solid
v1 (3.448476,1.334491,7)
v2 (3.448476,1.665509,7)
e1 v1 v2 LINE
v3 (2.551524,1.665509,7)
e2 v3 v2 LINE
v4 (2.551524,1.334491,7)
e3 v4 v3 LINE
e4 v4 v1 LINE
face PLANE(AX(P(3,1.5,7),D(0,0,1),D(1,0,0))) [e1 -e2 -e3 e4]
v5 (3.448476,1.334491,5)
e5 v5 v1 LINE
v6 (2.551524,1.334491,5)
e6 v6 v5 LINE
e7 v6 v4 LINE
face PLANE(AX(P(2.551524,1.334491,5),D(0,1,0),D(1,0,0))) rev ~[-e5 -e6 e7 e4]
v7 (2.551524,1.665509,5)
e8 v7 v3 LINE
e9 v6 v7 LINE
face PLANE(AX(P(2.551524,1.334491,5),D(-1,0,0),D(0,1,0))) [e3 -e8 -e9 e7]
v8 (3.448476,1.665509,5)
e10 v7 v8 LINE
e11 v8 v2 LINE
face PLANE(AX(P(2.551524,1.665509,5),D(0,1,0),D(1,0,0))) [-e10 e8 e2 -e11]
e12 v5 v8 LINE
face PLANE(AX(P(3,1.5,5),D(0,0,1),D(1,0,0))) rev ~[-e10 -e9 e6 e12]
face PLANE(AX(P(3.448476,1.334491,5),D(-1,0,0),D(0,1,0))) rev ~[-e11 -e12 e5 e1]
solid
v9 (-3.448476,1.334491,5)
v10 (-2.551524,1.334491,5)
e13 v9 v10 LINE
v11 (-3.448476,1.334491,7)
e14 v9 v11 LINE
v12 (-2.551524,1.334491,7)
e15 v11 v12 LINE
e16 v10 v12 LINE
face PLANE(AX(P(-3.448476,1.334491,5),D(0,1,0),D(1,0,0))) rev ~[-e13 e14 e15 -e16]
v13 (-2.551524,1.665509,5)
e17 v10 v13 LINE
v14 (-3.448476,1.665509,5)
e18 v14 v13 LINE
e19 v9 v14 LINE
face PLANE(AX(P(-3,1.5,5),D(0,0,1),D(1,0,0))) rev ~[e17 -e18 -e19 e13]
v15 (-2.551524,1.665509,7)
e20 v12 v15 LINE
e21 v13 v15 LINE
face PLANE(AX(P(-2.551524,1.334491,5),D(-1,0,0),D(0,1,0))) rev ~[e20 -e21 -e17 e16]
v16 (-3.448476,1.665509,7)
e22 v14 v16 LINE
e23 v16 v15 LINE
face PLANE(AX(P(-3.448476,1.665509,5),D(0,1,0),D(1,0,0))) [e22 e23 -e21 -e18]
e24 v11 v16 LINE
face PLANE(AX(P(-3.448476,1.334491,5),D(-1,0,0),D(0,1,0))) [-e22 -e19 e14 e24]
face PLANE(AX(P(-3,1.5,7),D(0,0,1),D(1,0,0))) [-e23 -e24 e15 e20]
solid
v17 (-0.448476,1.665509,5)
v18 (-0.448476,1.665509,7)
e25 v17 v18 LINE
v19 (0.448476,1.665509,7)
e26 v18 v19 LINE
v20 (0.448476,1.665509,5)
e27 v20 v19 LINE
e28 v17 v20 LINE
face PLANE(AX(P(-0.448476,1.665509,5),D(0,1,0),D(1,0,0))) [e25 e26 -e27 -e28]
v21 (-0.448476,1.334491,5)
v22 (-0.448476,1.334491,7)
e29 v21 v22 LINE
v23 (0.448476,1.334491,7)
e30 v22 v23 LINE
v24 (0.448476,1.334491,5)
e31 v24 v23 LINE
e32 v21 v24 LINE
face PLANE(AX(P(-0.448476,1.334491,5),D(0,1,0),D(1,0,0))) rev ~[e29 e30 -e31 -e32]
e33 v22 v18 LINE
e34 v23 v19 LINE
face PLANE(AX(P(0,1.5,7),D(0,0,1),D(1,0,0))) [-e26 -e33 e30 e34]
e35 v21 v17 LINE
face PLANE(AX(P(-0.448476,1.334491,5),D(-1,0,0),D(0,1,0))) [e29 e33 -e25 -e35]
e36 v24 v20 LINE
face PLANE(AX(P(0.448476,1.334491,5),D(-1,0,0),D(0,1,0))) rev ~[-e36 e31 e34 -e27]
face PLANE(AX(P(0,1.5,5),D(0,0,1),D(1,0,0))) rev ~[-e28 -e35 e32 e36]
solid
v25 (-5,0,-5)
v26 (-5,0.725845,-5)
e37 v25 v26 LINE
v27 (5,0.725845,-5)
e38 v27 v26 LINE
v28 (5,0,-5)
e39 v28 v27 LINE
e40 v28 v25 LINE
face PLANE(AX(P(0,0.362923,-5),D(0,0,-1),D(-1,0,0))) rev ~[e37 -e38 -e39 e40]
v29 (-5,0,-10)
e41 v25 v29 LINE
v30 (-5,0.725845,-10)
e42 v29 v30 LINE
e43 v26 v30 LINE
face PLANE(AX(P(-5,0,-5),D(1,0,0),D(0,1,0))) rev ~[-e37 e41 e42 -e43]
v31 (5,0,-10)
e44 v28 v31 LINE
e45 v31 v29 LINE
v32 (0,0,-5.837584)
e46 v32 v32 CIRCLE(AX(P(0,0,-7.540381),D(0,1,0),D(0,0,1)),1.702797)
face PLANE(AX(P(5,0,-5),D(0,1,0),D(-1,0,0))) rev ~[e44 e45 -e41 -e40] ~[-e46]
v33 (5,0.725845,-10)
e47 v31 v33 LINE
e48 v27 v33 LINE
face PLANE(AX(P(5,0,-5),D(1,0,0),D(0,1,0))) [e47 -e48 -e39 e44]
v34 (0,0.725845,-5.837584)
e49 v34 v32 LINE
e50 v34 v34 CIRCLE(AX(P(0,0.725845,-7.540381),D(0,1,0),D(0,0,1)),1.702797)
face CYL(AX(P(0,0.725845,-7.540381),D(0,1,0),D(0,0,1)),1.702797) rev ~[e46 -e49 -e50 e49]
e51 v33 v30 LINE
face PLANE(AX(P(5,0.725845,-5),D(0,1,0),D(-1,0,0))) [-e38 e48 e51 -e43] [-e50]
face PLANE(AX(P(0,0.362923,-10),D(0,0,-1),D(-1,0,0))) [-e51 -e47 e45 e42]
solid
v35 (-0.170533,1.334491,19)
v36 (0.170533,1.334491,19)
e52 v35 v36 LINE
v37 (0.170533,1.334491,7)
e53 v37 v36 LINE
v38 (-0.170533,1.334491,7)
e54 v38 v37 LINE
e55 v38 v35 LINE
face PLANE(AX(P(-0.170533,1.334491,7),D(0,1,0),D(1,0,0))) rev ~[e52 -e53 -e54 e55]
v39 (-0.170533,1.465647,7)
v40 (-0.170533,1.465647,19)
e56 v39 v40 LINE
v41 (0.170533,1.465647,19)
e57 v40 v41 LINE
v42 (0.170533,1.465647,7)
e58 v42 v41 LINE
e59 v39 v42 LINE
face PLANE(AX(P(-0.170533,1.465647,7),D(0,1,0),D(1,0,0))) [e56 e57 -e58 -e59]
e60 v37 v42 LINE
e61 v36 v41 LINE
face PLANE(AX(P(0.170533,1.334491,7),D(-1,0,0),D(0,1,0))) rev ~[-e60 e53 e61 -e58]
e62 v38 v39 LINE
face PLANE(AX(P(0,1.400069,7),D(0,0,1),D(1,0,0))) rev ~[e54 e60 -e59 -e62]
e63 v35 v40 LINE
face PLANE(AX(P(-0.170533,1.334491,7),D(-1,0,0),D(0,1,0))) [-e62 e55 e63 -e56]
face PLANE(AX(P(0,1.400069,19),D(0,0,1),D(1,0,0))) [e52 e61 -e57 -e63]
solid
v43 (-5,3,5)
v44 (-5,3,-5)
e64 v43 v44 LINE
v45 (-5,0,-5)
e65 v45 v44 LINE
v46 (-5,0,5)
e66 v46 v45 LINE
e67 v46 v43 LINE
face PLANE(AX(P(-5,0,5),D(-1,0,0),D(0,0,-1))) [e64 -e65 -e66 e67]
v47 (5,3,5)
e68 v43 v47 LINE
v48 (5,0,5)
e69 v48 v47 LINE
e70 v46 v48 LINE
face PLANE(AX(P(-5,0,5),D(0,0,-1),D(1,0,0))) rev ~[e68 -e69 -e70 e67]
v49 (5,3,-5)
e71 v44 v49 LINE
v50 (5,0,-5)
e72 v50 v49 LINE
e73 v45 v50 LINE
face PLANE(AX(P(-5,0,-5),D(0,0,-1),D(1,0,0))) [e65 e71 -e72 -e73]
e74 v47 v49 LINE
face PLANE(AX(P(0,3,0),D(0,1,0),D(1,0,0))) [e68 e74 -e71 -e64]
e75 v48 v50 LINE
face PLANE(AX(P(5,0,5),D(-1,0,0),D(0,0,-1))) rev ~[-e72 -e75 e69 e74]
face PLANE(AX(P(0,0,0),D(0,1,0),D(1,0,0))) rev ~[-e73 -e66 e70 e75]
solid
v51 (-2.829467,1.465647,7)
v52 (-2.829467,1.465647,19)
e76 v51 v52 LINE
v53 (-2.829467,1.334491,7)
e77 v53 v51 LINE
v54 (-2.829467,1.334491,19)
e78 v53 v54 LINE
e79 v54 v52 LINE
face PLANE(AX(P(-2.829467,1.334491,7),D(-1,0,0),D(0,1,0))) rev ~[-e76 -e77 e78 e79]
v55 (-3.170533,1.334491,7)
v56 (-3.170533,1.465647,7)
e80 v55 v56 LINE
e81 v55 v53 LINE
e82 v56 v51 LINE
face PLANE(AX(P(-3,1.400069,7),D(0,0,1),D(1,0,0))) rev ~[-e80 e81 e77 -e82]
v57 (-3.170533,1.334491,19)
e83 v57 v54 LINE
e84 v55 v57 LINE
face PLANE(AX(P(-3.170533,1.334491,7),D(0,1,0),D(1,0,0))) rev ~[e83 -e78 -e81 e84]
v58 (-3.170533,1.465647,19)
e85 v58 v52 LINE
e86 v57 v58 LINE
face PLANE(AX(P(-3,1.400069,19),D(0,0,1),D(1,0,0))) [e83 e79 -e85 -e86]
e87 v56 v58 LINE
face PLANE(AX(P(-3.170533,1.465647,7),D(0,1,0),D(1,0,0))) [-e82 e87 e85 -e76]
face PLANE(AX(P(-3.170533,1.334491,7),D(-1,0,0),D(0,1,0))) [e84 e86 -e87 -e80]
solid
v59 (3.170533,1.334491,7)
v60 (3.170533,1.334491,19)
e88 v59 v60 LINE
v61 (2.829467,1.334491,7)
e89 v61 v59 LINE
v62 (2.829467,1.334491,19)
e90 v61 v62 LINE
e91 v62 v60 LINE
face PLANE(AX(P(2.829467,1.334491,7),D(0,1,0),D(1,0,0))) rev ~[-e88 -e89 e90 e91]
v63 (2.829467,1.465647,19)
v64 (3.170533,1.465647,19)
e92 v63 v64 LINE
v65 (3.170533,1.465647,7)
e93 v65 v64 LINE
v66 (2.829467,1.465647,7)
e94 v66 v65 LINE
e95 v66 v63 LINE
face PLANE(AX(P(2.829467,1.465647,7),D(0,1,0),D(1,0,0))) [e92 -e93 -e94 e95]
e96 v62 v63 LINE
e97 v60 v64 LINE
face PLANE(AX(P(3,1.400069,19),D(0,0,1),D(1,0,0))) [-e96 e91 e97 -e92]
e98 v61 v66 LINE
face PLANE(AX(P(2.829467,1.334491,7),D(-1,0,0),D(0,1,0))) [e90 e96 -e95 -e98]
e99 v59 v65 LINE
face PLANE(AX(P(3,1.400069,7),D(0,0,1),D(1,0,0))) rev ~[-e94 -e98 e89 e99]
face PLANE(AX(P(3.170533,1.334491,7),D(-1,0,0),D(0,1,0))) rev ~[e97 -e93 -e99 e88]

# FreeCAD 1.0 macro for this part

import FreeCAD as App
import Part
import Sketcher
from FreeCAD import Vector
Q = App.Units.Quantity

doc = App.newDocument("Part")
body = doc.addObject("PartDesign::Body", "Body")

sketch1 = body.newObject("Sketcher::SketchObject", "Sketch")
sketch1.AttachmentSupport = (doc.getObject("XZ_Plane"), [""])
sketch1.MapMode = "FlatFace"
sketch1.addGeometry([
    Part.LineSegment(Vector(-5, -5, 0), Vector(-5, 5, 0)),
    Part.LineSegment(Vector(-5, 5, 0), Vector(5, 5, 0)),
    Part.LineSegment(Vector(5, 5, 0), Vector(5, -5, 0)),
    Part.LineSegment(Vector(5, -5, 0), Vector(-5, -5, 0)),
], False)
sketch1.addConstraint([
    Sketcher.Constraint("Coincident", 0, 2, 1, 1),
    Sketcher.Constraint("Coincident", 1, 2, 2, 1),
    Sketcher.Constraint("Coincident", 2, 2, 3, 1),
    Sketcher.Constraint("Coincident", 3, 2, 0, 1),
    Sketcher.Constraint("Vertical", 0),
    Sketcher.Constraint("Horizontal", 1),
    Sketcher.Constraint("Vertical", 2),
    Sketcher.Constraint("Horizontal", 3),
    Sketcher.Constraint("Symmetric", 0, 2, 2, 2, -1, 1),
    Sketcher.Constraint("Equal", 3, 0),
    Sketcher.Constraint("DistanceX", 1, 1, 1, 2, Q("10 mm")),
])
pad1 = body.newObject("PartDesign::Pad", "Pad")
pad1.Profile = sketch1
pad1.Length = 3
pad1.Reversed = True
body2 = doc.addObject("PartDesign::Body", "Body001")

sketch2 = body2.newObject("Sketcher::SketchObject", "Sketch001")
sketch2.AttachmentSupport = (doc.getObject("XY_Plane001"), [""])
sketch2.MapMode = "FlatFace"
sketch2.AttachmentOffset = App.Placement(Vector(0, 0, -5), App.Rotation())
sketch2.addGeometry([
    Part.LineSegment(Vector(5, 0.7, 0), Vector(5, 0, 0)),
    Part.LineSegment(Vector(5, 0, 0), Vector(-5, 0, 0)),
    Part.LineSegment(Vector(-5, 0, 0), Vector(-5, 0.7, 0)),
    Part.LineSegment(Vector(-5, 0.7, 0), Vector(5, 0.7, 0)),
], False)
sketch2.addConstraint([
    Sketcher.Constraint("Coincident", 0, 2, 1, 1),
    Sketcher.Constraint("Coincident", 1, 2, 2, 1),
    Sketcher.Constraint("Coincident", 2, 2, 3, 1),
    Sketcher.Constraint("Coincident", 3, 2, 0, 1),
    Sketcher.Constraint("Vertical", 0),
    Sketcher.Constraint("Horizontal", 1),
    Sketcher.Constraint("Vertical", 2),
    Sketcher.Constraint("Horizontal", 3),
    Sketcher.Constraint("Symmetric", 0, 2, 1, 2, -1, 1),
    Sketcher.Constraint("DistanceX", 1, 2, 1, 1, Q("10 mm")),
    Sketcher.Constraint("DistanceY", 0, 2, 0, 1, Q("0.725845 mm")),
])
pad2 = body2.newObject("PartDesign::Pad", "Pad001")
pad2.Profile = sketch2
pad2.Length = 5
pad2.Reversed = True

sketch3 = body2.newObject("Sketcher::SketchObject", "Sketch002")
sketch3.AttachmentSupport = (doc.getObject("XZ_Plane001"), [""])
sketch3.MapMode = "FlatFace"
sketch3.AttachmentOffset = App.Placement(Vector(0, 0, -0.725845), App.Rotation())
sketch3.addGeometry(Part.Circle(Vector(0, -7.5, 0), Vector(0, 0, 1), 1.7), False)
sketch3.addConstraint([
    Sketcher.Constraint("PointOnObject", 0, 3, -2),
    Sketcher.Constraint("Diameter", 0, Q("3.405594 mm")),
    Sketcher.Constraint("DistanceY", 0, 3, -1, 1, Q("7.540381 mm")),
])
pocket1 = body2.newObject("PartDesign::Pocket", "Pocket")
pocket1.Profile = sketch3
pocket1.Length = 12
pocket1.Reversed = True
body3 = doc.addObject("PartDesign::Body", "Body002")

sketch4 = body3.newObject("Sketcher::SketchObject", "Sketch003")
sketch4.AttachmentSupport = (doc.getObject("XY_Plane002"), [""])
sketch4.MapMode = "FlatFace"
sketch4.AttachmentOffset = App.Placement(Vector(0, 0, 5), App.Rotation())
sketch4.addGeometry([
    Part.LineSegment(Vector(2.55, 1.67, 0), Vector(2.55, 1.33, 0)),
    Part.LineSegment(Vector(2.55, 1.33, 0), Vector(3.45, 1.33, 0)),
    Part.LineSegment(Vector(3.45, 1.33, 0), Vector(3.45, 1.67, 0)),
    Part.LineSegment(Vector(3.45, 1.67, 0), Vector(2.55, 1.67, 0)),
], False)
sketch4.addConstraint([
    Sketcher.Constraint("Coincident", 0, 2, 1, 1),
    Sketcher.Constraint("Coincident", 1, 2, 2, 1),
    Sketcher.Constraint("Coincident", 2, 2, 3, 1),
    Sketcher.Constraint("Coincident", 3, 2, 0, 1),
    Sketcher.Constraint("Vertical", 0),
    Sketcher.Constraint("Horizontal", 1),
    Sketcher.Constraint("Vertical", 2),
    Sketcher.Constraint("Horizontal", 3),
    Sketcher.Constraint("DistanceX", 1, 1, 1, 2, Q("0.896952 mm")),
    Sketcher.Constraint("DistanceY", 0, 2, 0, 1, Q("0.331018 mm")),
    Sketcher.Constraint("DistanceY", -1, 1, 0, 2, Q("1.334491 mm")),
    Sketcher.Constraint("DistanceX", -1, 1, 0, 2, Q("2.551524 mm")),
])
pad3 = body3.newObject("PartDesign::Pad", "Pad002")
pad3.Profile = sketch4
pad3.Length = 2
body4 = doc.addObject("PartDesign::Body", "Body003")

sketch5 = body4.newObject("Sketcher::SketchObject", "Sketch004")
sketch5.AttachmentSupport = (doc.getObject("XY_Plane003"), [""])
sketch5.MapMode = "FlatFace"
sketch5.AttachmentOffset = App.Placement(Vector(0, 0, 5), App.Rotation())
sketch5.addGeometry([
    Part.LineSegment(Vector(-0.45, 1.67, 0), Vector(-0.45, 1.33, 0)),
    Part.LineSegment(Vector(-0.45, 1.33, 0), Vector(0.45, 1.33, 0)),
    Part.LineSegment(Vector(0.45, 1.33, 0), Vector(0.45, 1.67, 0)),
    Part.LineSegment(Vector(0.45, 1.67, 0), Vector(-0.45, 1.67, 0)),
], False)
sketch5.addConstraint([
    Sketcher.Constraint("Coincident", 0, 2, 1, 1),
    Sketcher.Constraint("Coincident", 1, 2, 2, 1),
    Sketcher.Constraint("Coincident", 2, 2, 3, 1),
    Sketcher.Constraint("Coincident", 3, 2, 0, 1),
    Sketcher.Constraint("Vertical", 0),
    Sketcher.Constraint("Horizontal", 1),
    Sketcher.Constraint("Vertical", 2),
    Sketcher.Constraint("Horizontal", 3),
    Sketcher.Constraint("DistanceX", 1, 1, 1, 2, Q("0.896952 mm")),
    Sketcher.Constraint("DistanceY", 0, 2, 0, 1, Q("0.331018 mm")),
    Sketcher.Constraint("DistanceY", -1, 1, 0, 2, Q("1.334491 mm")),
    Sketcher.Constraint("DistanceX", 0, 2, -1, 1, Q("0.448476 mm")),
])
pad4 = body4.newObject("PartDesign::Pad", "Pad003")
pad4.Profile = sketch5
pad4.Length = 2
body5 = doc.addObject("PartDesign::Body", "Body004")

sketch6 = body5.newObject("Sketcher::SketchObject", "Sketch005")
sketch6.AttachmentSupport = (doc.getObject("XY_Plane004"), [""])
sketch6.MapMode = "FlatFace"
sketch6.AttachmentOffset = App.Placement(Vector(0, 0, 5), App.Rotation())
sketch6.addGeometry([
    Part.LineSegment(Vector(-3.45, 1.67, 0), Vector(-3.45, 1.33, 0)),
    Part.LineSegment(Vector(-3.45, 1.33, 0), Vector(-2.55, 1.33, 0)),
    Part.LineSegment(Vector(-2.55, 1.33, 0), Vector(-2.55, 1.67, 0)),
    Part.LineSegment(Vector(-2.55, 1.67, 0), Vector(-3.45, 1.67, 0)),
], False)
sketch6.addConstraint([
    Sketcher.Constraint("Coincident", 0, 2, 1, 1),
    Sketcher.Constraint("Coincident", 1, 2, 2, 1),
    Sketcher.Constraint("Coincident", 2, 2, 3, 1),
    Sketcher.Constraint("Coincident", 3, 2, 0, 1),
    Sketcher.Constraint("Vertical", 0),
    Sketcher.Constraint("Horizontal", 1),
    Sketcher.Constraint("Vertical", 2),
    Sketcher.Constraint("Horizontal", 3),
    Sketcher.Constraint("DistanceX", 1, 1, 1, 2, Q("0.896952 mm")),
    Sketcher.Constraint("DistanceY", 0, 2, 0, 1, Q("0.331018 mm")),
    Sketcher.Constraint("DistanceY", -1, 1, 0, 2, Q("1.334491 mm")),
    Sketcher.Constraint("DistanceX", 0, 2, -1, 1, Q("3.448476 mm")),
])
pad5 = body5.newObject("PartDesign::Pad", "Pad004")
pad5.Profile = sketch6
pad5.Length = 2
body6 = doc.addObject("PartDesign::Body", "Body005")

sketch7 = body6.newObject("Sketcher::SketchObject", "Sketch006")
sketch7.AttachmentSupport = (doc.getObject("XY_Plane005"), [""])
sketch7.MapMode = "FlatFace"
sketch7.AttachmentOffset = App.Placement(Vector(0, 0, 7), App.Rotation())
sketch7.addGeometry([
    Part.LineSegment(Vector(-3.17, 1.47, 0), Vector(-3.17, 1.33, 0)),
    Part.LineSegment(Vector(-3.17, 1.33, 0), Vector(-2.83, 1.33, 0)),
    Part.LineSegment(Vector(-2.83, 1.33, 0), Vector(-2.83, 1.47, 0)),
    Part.LineSegment(Vector(-2.83, 1.47, 0), Vector(-3.17, 1.47, 0)),
], False)
sketch7.addConstraint([
    Sketcher.Constraint("Coincident", 0, 2, 1, 1),
    Sketcher.Constraint("Coincident", 1, 2, 2, 1),
    Sketcher.Constraint("Coincident", 2, 2, 3, 1),
    Sketcher.Constraint("Coincident", 3, 2, 0, 1),
    Sketcher.Constraint("Vertical", 0),
    Sketcher.Constraint("Horizontal", 1),
    Sketcher.Constraint("Vertical", 2),
    Sketcher.Constraint("Horizontal", 3),
    Sketcher.Constraint("DistanceX", 1, 1, 1, 2, Q("0.341067 mm")),
    Sketcher.Constraint("DistanceY", 0, 2, 0, 1, Q("0.131156 mm")),
    Sketcher.Constraint("DistanceY", -1, 1, 0, 2, Q("1.334491 mm")),
    Sketcher.Constraint("DistanceX", 0, 2, -1, 1, Q("3.170533 mm")),
])
pad6 = body6.newObject("PartDesign::Pad", "Pad005")
pad6.Profile = sketch7
pad6.Length = 12
body7 = doc.addObject("PartDesign::Body", "Body006")

sketch8 = body7.newObject("Sketcher::SketchObject", "Sketch007")
sketch8.AttachmentSupport = (doc.getObject("XY_Plane006"), [""])
sketch8.MapMode = "FlatFace"
sketch8.AttachmentOffset = App.Placement(Vector(0, 0, 7), App.Rotation())
sketch8.addGeometry([
    Part.LineSegment(Vector(-0.17, 1.47, 0), Vector(-0.17, 1.33, 0)),
    Part.LineSegment(Vector(-0.17, 1.33, 0), Vector(0.17, 1.33, 0)),
    Part.LineSegment(Vector(0.17, 1.33, 0), Vector(0.17, 1.47, 0)),
    Part.LineSegment(Vector(0.17, 1.47, 0), Vector(-0.17, 1.47, 0)),
], False)
sketch8.addConstraint([
    Sketcher.Constraint("Coincident", 0, 2, 1, 1),
    Sketcher.Constraint("Coincident", 1, 2, 2, 1),
    Sketcher.Constraint("Coincident", 2, 2, 3, 1),
    Sketcher.Constraint("Coincident", 3, 2, 0, 1),
    Sketcher.Constraint("Vertical", 0),
    Sketcher.Constraint("Horizontal", 1),
    Sketcher.Constraint("Vertical", 2),
    Sketcher.Constraint("Horizontal", 3),
    Sketcher.Constraint("DistanceX", 1, 1, 1, 2, Q("0.341067 mm")),
    Sketcher.Constraint("DistanceY", 0, 2, 0, 1, Q("0.131156 mm")),
    Sketcher.Constraint("DistanceY", -1, 1, 0, 2, Q("1.334491 mm")),
    Sketcher.Constraint("DistanceX", 0, 2, -1, 1, Q("0.170533 mm")),
])
pad7 = body7.newObject("PartDesign::Pad", "Pad006")
pad7.Profile = sketch8
pad7.Length = 12
body8 = doc.addObject("PartDesign::Body", "Body007")

sketch9 = body8.newObject("Sketcher::SketchObject", "Sketch008")
sketch9.AttachmentSupport = (doc.getObject("XY_Plane007"), [""])
sketch9.MapMode = "FlatFace"
sketch9.AttachmentOffset = App.Placement(Vector(0, 0, 7), App.Rotation())
sketch9.addGeometry([
    Part.LineSegment(Vector(2.83, 1.47, 0), Vector(2.83, 1.33, 0)),
    Part.LineSegment(Vector(2.83, 1.33, 0), Vector(3.17, 1.33, 0)),
    Part.LineSegment(Vector(3.17, 1.33, 0), Vector(3.17, 1.47, 0)),
    Part.LineSegment(Vector(3.17, 1.47, 0), Vector(2.83, 1.47, 0)),
], False)
sketch9.addConstraint([
    Sketcher.Constraint("Coincident", 0, 2, 1, 1),
    Sketcher.Constraint("Coincident", 1, 2, 2, 1),
    Sketcher.Constraint("Coincident", 2, 2, 3, 1),
    Sketcher.Constraint("Coincident", 3, 2, 0, 1),
    Sketcher.Constraint("Vertical", 0),
    Sketcher.Constraint("Horizontal", 1),
    Sketcher.Constraint("Vertical", 2),
    Sketcher.Constraint("Horizontal", 3),
    Sketcher.Constraint("DistanceX", 1, 1, 1, 2, Q("0.341067 mm")),
    Sketcher.Constraint("DistanceY", 0, 2, 0, 1, Q("0.131156 mm")),
    Sketcher.Constraint("DistanceY", -1, 1, 0, 2, Q("1.334491 mm")),
    Sketcher.Constraint("DistanceX", -1, 1, 0, 2, Q("2.829467 mm")),
])
pad8 = body8.newObject("PartDesign::Pad", "Pad007")
pad8.Profile = sketch9
pad8.Length = 12

doc.recompute()
